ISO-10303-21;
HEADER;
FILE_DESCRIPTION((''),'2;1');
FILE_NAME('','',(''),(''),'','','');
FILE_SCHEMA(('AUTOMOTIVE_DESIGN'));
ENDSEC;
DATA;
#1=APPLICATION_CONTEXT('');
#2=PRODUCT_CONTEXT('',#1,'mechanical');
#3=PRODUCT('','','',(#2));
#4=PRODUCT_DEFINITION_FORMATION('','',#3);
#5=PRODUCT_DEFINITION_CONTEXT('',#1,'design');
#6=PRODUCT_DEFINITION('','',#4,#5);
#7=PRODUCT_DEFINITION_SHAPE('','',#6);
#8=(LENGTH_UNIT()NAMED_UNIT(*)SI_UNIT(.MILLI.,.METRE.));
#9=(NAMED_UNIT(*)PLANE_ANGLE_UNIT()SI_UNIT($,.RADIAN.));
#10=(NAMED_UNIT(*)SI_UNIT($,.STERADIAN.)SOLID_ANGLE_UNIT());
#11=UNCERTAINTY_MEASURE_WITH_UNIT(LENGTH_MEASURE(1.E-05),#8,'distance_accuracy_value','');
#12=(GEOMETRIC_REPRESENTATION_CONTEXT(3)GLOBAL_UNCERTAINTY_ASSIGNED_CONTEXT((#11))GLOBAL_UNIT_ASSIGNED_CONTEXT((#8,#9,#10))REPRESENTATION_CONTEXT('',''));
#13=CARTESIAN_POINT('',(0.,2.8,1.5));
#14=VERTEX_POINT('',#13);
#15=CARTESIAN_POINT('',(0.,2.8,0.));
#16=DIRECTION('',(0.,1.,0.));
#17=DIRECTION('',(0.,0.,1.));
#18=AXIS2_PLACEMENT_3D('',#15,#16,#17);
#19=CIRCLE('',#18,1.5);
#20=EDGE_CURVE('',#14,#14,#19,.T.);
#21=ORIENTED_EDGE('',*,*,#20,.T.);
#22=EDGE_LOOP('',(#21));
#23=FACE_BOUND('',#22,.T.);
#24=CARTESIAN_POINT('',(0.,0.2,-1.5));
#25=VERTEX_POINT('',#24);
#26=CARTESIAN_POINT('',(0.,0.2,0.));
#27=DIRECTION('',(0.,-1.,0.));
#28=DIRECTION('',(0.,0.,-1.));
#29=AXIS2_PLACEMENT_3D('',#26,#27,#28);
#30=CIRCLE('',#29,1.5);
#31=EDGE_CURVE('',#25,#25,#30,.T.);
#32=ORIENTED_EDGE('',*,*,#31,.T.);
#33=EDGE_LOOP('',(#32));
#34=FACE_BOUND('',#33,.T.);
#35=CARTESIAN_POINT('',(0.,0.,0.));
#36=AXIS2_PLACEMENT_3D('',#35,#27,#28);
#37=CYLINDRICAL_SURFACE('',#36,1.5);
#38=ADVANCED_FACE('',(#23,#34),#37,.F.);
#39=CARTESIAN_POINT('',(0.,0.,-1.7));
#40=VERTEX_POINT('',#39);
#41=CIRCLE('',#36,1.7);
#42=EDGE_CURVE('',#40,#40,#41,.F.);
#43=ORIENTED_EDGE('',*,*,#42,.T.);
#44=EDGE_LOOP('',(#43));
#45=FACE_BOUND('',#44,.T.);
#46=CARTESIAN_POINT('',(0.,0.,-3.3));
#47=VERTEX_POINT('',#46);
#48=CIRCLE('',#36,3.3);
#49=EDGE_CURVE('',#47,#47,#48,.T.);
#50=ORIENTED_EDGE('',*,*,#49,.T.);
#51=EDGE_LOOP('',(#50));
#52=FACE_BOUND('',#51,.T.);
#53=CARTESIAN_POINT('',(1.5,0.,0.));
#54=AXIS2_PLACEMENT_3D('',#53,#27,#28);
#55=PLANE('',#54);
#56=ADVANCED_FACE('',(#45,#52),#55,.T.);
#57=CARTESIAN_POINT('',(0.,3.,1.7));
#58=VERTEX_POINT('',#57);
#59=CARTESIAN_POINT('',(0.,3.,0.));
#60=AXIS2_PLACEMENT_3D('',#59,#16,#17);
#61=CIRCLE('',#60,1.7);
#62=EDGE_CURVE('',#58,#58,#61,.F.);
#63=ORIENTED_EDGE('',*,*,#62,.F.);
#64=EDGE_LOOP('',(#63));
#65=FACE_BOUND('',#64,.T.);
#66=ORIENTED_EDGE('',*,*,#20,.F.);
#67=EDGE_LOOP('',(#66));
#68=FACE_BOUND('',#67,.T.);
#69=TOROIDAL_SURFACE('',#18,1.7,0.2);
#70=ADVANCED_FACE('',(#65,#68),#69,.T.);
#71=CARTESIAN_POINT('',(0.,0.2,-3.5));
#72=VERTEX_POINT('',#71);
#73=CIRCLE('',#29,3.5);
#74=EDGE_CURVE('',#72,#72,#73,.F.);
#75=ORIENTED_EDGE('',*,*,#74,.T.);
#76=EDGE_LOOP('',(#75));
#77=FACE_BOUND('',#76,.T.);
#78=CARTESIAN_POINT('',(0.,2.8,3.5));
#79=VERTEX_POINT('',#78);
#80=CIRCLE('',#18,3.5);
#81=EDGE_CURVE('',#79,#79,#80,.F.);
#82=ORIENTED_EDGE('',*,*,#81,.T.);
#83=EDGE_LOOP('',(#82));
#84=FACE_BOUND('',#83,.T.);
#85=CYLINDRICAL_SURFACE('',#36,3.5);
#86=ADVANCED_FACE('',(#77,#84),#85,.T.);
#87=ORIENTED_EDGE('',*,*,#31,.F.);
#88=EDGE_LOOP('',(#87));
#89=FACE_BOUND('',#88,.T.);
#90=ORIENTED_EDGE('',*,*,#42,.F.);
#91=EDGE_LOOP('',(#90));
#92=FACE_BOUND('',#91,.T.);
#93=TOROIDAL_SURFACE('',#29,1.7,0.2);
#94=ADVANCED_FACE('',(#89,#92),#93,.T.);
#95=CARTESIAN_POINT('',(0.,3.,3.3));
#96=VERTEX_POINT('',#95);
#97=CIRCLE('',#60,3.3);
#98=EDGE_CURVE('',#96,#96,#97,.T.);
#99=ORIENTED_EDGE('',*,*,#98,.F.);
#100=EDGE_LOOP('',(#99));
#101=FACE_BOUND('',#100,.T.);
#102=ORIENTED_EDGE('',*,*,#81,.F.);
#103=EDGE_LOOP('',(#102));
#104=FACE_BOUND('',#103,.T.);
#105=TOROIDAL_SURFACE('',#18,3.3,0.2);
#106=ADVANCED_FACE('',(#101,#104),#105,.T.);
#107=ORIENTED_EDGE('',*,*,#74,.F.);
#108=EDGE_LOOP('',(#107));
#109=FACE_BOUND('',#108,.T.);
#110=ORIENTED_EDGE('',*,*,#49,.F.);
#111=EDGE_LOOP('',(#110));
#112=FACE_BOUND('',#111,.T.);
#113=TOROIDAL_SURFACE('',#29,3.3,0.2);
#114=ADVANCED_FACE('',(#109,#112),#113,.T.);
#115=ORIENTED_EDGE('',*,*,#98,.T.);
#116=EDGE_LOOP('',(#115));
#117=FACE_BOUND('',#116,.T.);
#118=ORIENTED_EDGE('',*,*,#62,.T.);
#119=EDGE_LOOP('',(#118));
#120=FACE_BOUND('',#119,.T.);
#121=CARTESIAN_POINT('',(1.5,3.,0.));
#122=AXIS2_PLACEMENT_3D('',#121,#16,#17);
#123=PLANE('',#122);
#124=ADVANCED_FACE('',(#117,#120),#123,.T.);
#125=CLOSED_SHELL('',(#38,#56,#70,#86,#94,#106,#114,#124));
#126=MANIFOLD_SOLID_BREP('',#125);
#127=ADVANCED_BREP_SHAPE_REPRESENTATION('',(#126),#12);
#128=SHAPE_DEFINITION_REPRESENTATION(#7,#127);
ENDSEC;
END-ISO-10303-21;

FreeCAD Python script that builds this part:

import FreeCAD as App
import Part
import Sketcher

V = App.Vector


def edges_at(feature, points):
    """Names of the edges that pass closest to the given points."""
    edges = feature.Shape.Edges
    near = lambda p: min(range(len(edges)), key=lambda i: edges[i].distToShape(Part.Vertex(*p))[0])
    return sorted({f"Edge{near(p) + 1}" for p in points})

doc = App.newDocument("Part")
body = doc.addObject("PartDesign::Body", "Body")

sketch1 = doc.addObject("Sketcher::SketchObject", "Sketch")
body.addObject(sketch1)
sketch1.AttachmentSupport = (doc.XY_Plane, [""])
sketch1.MapMode = "FlatFace"
sketch1.addGeometry([
    Part.LineSegment(V(1.5, 3, 0), V(1.5, 0, 0)),
    Part.LineSegment(V(1.5, 0, 0), V(3.5, 0, 0)),
    Part.LineSegment(V(3.5, 0, 0), V(3.5, 3, 0)),
    Part.LineSegment(V(3.5, 3, 0), V(1.5, 3, 0)),
], False)
sketch1.addConstraint([
    Sketcher.Constraint("Coincident", 0, 2, 1, 1),
    Sketcher.Constraint("Coincident", 1, 2, 2, 1),
    Sketcher.Constraint("Coincident", 2, 2, 3, 1),
    Sketcher.Constraint("Coincident", 3, 2, 0, 1),
    Sketcher.Constraint("Vertical", 0),
    Sketcher.Constraint("Horizontal", 1),
    Sketcher.Constraint("Vertical", 2),
    Sketcher.Constraint("Horizontal", 3),
    Sketcher.Constraint("PointOnObject", 0, 2, -1),
    Sketcher.Constraint("DistanceX", 1, 1, 1, 2, 2.0),
    Sketcher.Constraint("DistanceY", 0, 2, 0, 1, 3.0),
    Sketcher.Constraint("DistanceX", -1, 1, 0, 2, 1.5),
])
revolution = doc.addObject("PartDesign::Revolution", "Revolution")
body.addObject(revolution)
revolution.Profile = sketch1
revolution.ReferenceAxis = (sketch1, ["V_Axis"])
revolution.Angle = 360
doc.recompute()

fillet = doc.addObject("PartDesign::Fillet", "Fillet")
body.addObject(fillet)
fillet.Base = (revolution, edges_at(revolution, [
    (0, 0, 1.5),
    (0, 0, 3.5),
    (0, 3, 3.5),
    (0, 3, 1.5),
]))
fillet.Radius = 0.2

doc.recompute()
